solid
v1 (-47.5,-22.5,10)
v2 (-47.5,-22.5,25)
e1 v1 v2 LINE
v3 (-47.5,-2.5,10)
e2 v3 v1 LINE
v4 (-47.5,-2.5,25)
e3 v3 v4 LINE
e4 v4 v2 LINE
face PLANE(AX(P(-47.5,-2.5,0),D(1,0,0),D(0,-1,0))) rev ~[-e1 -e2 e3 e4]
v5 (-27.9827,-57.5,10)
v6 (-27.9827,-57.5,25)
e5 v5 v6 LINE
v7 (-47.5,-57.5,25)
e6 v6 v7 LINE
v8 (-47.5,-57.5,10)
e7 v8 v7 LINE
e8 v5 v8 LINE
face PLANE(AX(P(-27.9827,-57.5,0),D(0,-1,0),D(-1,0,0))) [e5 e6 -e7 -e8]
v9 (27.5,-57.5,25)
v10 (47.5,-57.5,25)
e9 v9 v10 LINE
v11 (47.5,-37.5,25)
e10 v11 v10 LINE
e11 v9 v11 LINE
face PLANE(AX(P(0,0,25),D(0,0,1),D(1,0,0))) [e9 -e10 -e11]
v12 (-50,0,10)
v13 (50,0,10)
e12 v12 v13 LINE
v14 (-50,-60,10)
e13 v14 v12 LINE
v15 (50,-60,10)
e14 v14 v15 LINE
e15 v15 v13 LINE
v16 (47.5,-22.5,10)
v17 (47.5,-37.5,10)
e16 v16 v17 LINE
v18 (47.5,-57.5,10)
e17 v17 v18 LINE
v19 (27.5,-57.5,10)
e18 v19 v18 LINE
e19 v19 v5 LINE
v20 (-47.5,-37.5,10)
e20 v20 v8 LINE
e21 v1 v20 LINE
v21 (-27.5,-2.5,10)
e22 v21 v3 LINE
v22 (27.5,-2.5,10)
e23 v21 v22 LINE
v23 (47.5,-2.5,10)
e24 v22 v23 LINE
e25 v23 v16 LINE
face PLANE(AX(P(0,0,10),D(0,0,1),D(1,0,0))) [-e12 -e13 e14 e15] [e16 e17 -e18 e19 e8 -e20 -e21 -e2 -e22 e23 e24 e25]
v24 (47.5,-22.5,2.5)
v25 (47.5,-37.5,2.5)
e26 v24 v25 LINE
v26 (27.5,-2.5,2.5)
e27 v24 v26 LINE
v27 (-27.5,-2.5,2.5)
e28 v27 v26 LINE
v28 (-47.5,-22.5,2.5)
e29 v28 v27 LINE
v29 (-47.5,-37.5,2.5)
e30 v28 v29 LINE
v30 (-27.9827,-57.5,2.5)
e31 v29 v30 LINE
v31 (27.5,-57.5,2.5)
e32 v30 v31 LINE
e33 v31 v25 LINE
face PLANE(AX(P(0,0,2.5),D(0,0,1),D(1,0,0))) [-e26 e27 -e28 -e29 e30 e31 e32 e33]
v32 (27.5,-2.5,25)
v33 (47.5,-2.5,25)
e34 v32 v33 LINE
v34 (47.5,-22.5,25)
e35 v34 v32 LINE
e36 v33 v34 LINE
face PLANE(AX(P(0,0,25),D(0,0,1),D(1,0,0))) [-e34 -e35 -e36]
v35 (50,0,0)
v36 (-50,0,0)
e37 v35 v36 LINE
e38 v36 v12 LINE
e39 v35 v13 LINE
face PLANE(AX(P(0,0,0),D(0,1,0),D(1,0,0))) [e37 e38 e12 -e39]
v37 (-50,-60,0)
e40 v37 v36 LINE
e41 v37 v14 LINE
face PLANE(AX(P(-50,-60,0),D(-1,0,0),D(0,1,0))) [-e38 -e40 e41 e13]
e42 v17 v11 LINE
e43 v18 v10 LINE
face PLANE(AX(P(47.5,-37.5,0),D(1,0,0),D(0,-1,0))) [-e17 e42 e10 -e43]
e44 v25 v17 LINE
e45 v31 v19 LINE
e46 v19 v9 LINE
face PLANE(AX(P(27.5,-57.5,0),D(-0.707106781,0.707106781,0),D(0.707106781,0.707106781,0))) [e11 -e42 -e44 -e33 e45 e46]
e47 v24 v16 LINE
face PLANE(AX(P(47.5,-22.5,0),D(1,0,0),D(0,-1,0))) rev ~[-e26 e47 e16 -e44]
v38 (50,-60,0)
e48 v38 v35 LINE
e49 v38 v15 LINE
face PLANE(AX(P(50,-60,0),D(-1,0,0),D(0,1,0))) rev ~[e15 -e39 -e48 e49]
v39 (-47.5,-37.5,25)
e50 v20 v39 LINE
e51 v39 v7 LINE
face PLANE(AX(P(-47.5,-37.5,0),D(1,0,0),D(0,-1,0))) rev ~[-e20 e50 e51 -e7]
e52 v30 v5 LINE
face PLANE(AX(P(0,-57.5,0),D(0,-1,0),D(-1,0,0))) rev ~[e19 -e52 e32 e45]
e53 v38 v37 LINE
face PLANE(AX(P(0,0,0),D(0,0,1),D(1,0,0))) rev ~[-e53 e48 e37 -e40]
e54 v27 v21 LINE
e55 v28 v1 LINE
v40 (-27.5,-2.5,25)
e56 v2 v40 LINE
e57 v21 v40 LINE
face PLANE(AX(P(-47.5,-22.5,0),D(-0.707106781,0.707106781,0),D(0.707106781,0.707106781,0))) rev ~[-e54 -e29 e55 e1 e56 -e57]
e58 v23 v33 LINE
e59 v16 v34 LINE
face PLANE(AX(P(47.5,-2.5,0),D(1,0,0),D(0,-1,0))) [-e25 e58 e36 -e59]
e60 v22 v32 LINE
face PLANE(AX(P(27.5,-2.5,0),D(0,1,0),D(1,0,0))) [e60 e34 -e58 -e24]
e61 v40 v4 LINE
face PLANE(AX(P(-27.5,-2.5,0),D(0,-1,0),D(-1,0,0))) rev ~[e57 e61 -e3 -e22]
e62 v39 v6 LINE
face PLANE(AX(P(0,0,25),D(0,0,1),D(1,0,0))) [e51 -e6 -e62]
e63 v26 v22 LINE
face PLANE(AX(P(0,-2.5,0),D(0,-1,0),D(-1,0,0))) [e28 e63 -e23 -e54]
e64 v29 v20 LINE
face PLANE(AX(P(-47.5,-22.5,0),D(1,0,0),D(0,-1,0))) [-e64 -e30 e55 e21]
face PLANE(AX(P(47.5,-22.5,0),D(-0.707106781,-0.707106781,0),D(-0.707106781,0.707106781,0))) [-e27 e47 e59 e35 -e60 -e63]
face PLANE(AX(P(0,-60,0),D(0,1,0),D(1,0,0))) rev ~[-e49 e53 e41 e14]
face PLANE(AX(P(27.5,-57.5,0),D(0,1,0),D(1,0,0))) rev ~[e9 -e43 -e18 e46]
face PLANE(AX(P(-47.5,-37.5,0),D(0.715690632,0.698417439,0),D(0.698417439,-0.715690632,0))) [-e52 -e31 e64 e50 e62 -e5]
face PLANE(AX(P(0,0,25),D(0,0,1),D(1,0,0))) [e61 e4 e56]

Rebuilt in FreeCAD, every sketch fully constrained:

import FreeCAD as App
import Part
import Sketcher
from FreeCAD import Vector
Q = App.Units.Quantity


def add_polygon(sketch, points):
    """Adds a closed chain of lines whose ends are joined by coincident constraints."""
    first, n = sketch.GeometryCount, len(points)
    for a, b in zip(points, points[1:] + points[:1]):
        sketch.addGeometry(Part.LineSegment(App.Vector(*a, 0), App.Vector(*b, 0)), False)
    for i in range(n):
        sketch.addConstraint(Sketcher.Constraint("Coincident", first + i, 2, first + (i + 1) % n, 1))

doc = App.newDocument("Part")
body = doc.addObject("PartDesign::Body", "Body")

sketch1 = body.newObject("Sketcher::SketchObject", "Sketch")
sketch1.AttachmentSupport = (doc.getObject("XY_Plane"), [""])
sketch1.MapMode = "FlatFace"
add_polygon(sketch1, [(50, 0), (-50, 0), (-50, -60), (50, -60)])
add_polygon(sketch1, [(-47.5, -2.5), (47.5, -2.5), (47.5, -57.5), (-47.5, -57.5)])
sketch1.addConstraint(Sketcher.Constraint("Horizontal", 0))
sketch1.addConstraint(Sketcher.Constraint("Vertical", 1))
sketch1.addConstraint(Sketcher.Constraint("Horizontal", 2))
sketch1.addConstraint(Sketcher.Constraint("Vertical", 3))
sketch1.addConstraint(Sketcher.Constraint("Horizontal", 4))
sketch1.addConstraint(Sketcher.Constraint("Vertical", 5))
sketch1.addConstraint(Sketcher.Constraint("Horizontal", 6))
sketch1.addConstraint(Sketcher.Constraint("Vertical", 7))
sketch1.addConstraint(Sketcher.Constraint("Symmetric", 0, 2, 3, 2, -1, 1))
sketch1.addConstraint(Sketcher.Constraint("DistanceY", 1, 2, 1, 1, Q("60 mm")))
sketch1.addConstraint(Sketcher.Constraint("DistanceX", 0, 2, -1, 1, Q("50 mm")))
sketch1.addConstraint(Sketcher.Constraint("DistanceX", -1, 1, 4, 2, Q("47.5 mm")))
sketch1.addConstraint(Sketcher.Constraint("DistanceY", 4, 2, -1, 1, Q("2.5 mm")))
sketch1.addConstraint(Sketcher.Constraint("DistanceX", 6, 2, -1, 1, Q("47.5 mm")))
sketch1.addConstraint(Sketcher.Constraint("DistanceY", 2, 2, 5, 2, Q("2.5 mm")))
pad1 = body.newObject("PartDesign::Pad", "Pad")
pad1.Profile = sketch1
pad1.Length = 10

sketch2 = body.newObject("Sketcher::SketchObject", "Sketch001")
sketch2.AttachmentSupport = (doc.getObject("XY_Plane"), [""])
sketch2.MapMode = "FlatFace"
add_polygon(sketch2, [(47.5, -2.5), (27.5, -2.5), (47.5, -22.5)])
add_polygon(sketch2, [(-47.5, -22.5), (-27.5, -2.5), (-47.5, -2.5)])
add_polygon(sketch2, [(47.5, -57.5), (47.5, -37.5), (27.5, -57.5)])
add_polygon(sketch2, [(-27.9827, -57.5), (-47.5, -37.5), (-47.5, -57.5)])
sketch2.addConstraint(Sketcher.Constraint("Horizontal", 0))
sketch2.addConstraint(Sketcher.Constraint("Vertical", 2))
sketch2.addConstraint(Sketcher.Constraint("Horizontal", 4))
sketch2.addConstraint(Sketcher.Constraint("Vertical", 5))
sketch2.addConstraint(Sketcher.Constraint("Vertical", 6))
sketch2.addConstraint(Sketcher.Constraint("Horizontal", 8))
sketch2.addConstraint(Sketcher.Constraint("Vertical", 10))
sketch2.addConstraint(Sketcher.Constraint("Horizontal", 11))
sketch2.addConstraint(Sketcher.Constraint("Symmetric", 0, 2, 3, 2, -2))
sketch2.addConstraint(Sketcher.Constraint("Symmetric", 1, 2, 5, 2, -2))
sketch2.addConstraint(Sketcher.Constraint("Symmetric", 6, 2, 9, 2, -2))
sketch2.addConstraint(Sketcher.Constraint("Perpendicular", 1, 3))
sketch2.addConstraint(Sketcher.Constraint("Parallel", 3, 7))
sketch2.addConstraint(Sketcher.Constraint("Horizontal", 8, 2, 10, 2))
sketch2.addConstraint(Sketcher.Constraint("Vertical", 2, 2, 6, 2))
sketch2.addConstraint(Sketcher.Constraint("Vertical", 0, 2, 7, 2))
sketch2.addConstraint(Sketcher.Constraint("DistanceY", 0, 2, -1, 1, Q("2.5 mm")))
sketch2.addConstraint(Sketcher.Constraint("DistanceX", -1, 1, 1, 2, Q("47.5 mm")))
sketch2.addConstraint(Sketcher.Constraint("DistanceX", 0, 2, 0, 1, Q("20 mm")))
sketch2.addConstraint(Sketcher.Constraint("Angle", 9, Q("134.3002 deg")))
sketch2.addConstraint(Sketcher.Constraint("DistanceY", 6, 2, 1, 2, Q("15 mm")))
pad2 = body.newObject("PartDesign::Pad", "Pad001")
pad2.Profile = sketch2
pad2.Length = 25

sketch3 = body.newObject("Sketcher::SketchObject", "Sketch002")
sketch3.AttachmentSupport = (doc.getObject("XY_Plane"), [""])
sketch3.MapMode = "FlatFace"
add_polygon(sketch3, [(27.5, -2.5), (-27.5, -2.5), (-47.5, -22.5), (-47.5, -37.5), (-27.9827, -57.5), (27.5, -57.5), (47.5, -37.5), (47.5, -22.5)])
sketch3.addConstraint(Sketcher.Constraint("Horizontal", 0))
sketch3.addConstraint(Sketcher.Constraint("Vertical", 2))
sketch3.addConstraint(Sketcher.Constraint("Horizontal", 4))
sketch3.addConstraint(Sketcher.Constraint("Vertical", 6))
sketch3.addConstraint(Sketcher.Constraint("Symmetric", 2, 2, 5, 2, -2))
sketch3.addConstraint(Sketcher.Constraint("Parallel", 1, 5))
sketch3.addConstraint(Sketcher.Constraint("Perpendicular", 5, 7))
sketch3.addConstraint(Sketcher.Constraint("Horizontal", 1, 2, 6, 2))
sketch3.addConstraint(Sketcher.Constraint("Vertical", 4, 2, 7, 2))
sketch3.addConstraint(Sketcher.Constraint("Equal", 1, 5))
sketch3.addConstraint(Sketcher.Constraint("DistanceY", 0, 2, -1, 1, Q("2.5 mm")))
sketch3.addConstraint(Sketcher.Constraint("DistanceX", 1, 2, -1, 1, Q("47.5 mm")))
sketch3.addConstraint(Sketcher.Constraint("DistanceX", 0, 2, 0, 1, Q("55 mm")))
sketch3.addConstraint(Sketcher.Constraint("DistanceY", 2, 2, 2, 1, Q("15 mm")))
sketch3.addConstraint(Sketcher.Constraint("Angle", 3, Q("-45.6998 deg")))
pad3 = body.newObject("PartDesign::Pad", "Pad002")
pad3.Profile = sketch3
pad3.Length = 2.5

doc.recompute()
